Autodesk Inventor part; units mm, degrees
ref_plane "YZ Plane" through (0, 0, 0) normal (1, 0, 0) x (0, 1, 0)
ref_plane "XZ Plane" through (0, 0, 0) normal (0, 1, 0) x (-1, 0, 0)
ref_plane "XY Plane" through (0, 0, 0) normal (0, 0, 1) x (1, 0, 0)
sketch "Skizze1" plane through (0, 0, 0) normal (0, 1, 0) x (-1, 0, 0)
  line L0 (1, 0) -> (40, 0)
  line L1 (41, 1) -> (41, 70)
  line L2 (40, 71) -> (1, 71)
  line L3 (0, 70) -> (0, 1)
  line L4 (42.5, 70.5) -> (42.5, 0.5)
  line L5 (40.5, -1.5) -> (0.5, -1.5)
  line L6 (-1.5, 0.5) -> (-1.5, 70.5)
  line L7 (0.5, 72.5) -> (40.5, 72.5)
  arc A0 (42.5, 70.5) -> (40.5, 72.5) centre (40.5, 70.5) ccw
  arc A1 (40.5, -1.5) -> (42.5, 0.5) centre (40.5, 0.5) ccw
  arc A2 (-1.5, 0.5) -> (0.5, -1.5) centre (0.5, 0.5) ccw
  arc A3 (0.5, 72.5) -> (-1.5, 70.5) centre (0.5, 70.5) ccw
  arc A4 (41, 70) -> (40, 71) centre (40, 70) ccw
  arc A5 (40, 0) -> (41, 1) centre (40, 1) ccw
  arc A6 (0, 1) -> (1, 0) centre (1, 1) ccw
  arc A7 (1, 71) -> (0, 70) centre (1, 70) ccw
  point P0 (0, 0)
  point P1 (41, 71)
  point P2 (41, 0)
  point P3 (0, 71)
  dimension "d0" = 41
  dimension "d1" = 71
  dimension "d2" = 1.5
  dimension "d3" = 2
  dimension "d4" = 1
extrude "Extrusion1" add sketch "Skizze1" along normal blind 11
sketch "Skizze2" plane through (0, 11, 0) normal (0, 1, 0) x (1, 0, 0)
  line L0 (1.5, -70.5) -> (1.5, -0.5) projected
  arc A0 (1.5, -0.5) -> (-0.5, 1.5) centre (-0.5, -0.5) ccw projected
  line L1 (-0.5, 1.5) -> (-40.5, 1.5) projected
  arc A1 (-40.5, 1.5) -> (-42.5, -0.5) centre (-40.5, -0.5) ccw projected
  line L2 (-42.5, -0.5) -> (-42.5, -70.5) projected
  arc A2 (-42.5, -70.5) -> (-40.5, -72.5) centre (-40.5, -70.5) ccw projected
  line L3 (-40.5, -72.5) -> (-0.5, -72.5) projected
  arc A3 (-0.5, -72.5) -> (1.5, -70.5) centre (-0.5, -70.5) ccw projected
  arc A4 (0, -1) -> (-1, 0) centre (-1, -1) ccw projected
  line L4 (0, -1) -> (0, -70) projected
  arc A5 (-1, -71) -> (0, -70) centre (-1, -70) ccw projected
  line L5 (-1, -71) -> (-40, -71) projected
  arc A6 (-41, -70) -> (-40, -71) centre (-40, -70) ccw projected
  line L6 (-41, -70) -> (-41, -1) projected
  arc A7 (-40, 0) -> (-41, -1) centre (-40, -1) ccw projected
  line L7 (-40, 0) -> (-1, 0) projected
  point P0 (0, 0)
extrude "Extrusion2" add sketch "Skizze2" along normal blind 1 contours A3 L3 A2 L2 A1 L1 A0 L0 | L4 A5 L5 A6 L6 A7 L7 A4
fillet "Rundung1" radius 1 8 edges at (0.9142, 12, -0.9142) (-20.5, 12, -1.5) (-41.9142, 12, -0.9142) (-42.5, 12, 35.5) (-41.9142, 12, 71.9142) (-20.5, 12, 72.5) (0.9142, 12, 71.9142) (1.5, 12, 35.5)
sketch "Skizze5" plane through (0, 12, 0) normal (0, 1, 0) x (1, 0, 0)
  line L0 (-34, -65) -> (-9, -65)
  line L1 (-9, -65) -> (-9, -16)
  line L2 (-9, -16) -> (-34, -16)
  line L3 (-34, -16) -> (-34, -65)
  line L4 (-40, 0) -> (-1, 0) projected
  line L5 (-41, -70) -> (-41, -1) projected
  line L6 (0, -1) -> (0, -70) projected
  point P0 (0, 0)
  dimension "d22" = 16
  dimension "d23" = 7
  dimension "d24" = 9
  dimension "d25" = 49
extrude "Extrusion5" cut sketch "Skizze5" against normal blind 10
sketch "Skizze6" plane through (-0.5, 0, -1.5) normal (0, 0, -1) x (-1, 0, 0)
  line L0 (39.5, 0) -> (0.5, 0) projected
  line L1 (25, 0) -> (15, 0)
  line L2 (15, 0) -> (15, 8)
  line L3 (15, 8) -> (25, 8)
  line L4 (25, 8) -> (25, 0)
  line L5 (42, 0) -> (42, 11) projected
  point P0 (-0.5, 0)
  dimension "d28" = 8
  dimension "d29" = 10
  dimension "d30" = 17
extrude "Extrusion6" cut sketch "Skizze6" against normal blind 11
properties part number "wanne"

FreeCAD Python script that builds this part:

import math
import FreeCAD as App
import Part
import Sketcher


def edges_at(feature, points):
    """Names of the edges that pass closest to the given points."""
    edges = feature.Shape.Edges
    near = lambda p: min(range(len(edges)), key=lambda i: edges[i].distToShape(Part.Vertex(*p))[0])
    return sorted({f"Edge{near(p) + 1}" for p in points})

doc = App.newDocument("Part")
body = doc.addObject("PartDesign::Body", "Body")

# Sketch on XZ plane
sketch1 = body.newObject("Sketcher::SketchObject", "Sketch")
sketch1.AttachmentSupport = (doc.getObject("XZ_Plane"), [""])
sketch1.MapMode = "FlatFace"
sketch1.addGeometry(Part.LineSegment(App.Vector(-42.5, 0.5, 0), App.Vector(-42.5, 70.5, 0)), False)
sketch1.addGeometry(Part.ArcOfCircle(Part.Circle(App.Vector(-40.5, 70.5, 0), App.Vector(0, 0, 1), 2), math.radians(90), math.radians(180)), False)
sketch1.addGeometry(Part.LineSegment(App.Vector(-40.5, 72.5, 0), App.Vector(-0.5, 72.5, 0)), False)
sketch1.addGeometry(Part.ArcOfCircle(Part.Circle(App.Vector(-0.5, 70.5, 0), App.Vector(0, 0, 1), 2), math.radians(0), math.radians(90)), False)
sketch1.addGeometry(Part.LineSegment(App.Vector(1.5, 70.5, 0), App.Vector(1.5, 0.5, 0)), False)
sketch1.addGeometry(Part.ArcOfCircle(Part.Circle(App.Vector(-0.5, 0.5, 0), App.Vector(0, 0, 1), 2), math.radians(-90), math.radians(0)), False)
sketch1.addGeometry(Part.LineSegment(App.Vector(-0.5, -1.5, 0), App.Vector(-40.5, -1.5, 0)), False)
sketch1.addGeometry(Part.ArcOfCircle(Part.Circle(App.Vector(-40.5, 0.5, 0), App.Vector(0, 0, 1), 2), math.radians(180), math.radians(270)), False)
sketch1.addGeometry(Part.LineSegment(App.Vector(-40, 0, 0), App.Vector(-1, 0, 0)), False)
sketch1.addGeometry(Part.ArcOfCircle(Part.Circle(App.Vector(-1, 1, 0), App.Vector(0, 0, 1), 1), math.radians(-90), math.radians(0)), False)
sketch1.addGeometry(Part.LineSegment(App.Vector(0, 1, 0), App.Vector(0, 70, 0)), False)
sketch1.addGeometry(Part.ArcOfCircle(Part.Circle(App.Vector(-1, 70, 0), App.Vector(0, 0, 1), 1), math.radians(0), math.radians(90)), False)
sketch1.addGeometry(Part.LineSegment(App.Vector(-1, 71, 0), App.Vector(-40, 71, 0)), False)
sketch1.addGeometry(Part.ArcOfCircle(Part.Circle(App.Vector(-40, 70, 0), App.Vector(0, 0, 1), 1), math.radians(90), math.radians(180)), False)
sketch1.addGeometry(Part.LineSegment(App.Vector(-41, 70, 0), App.Vector(-41, 1, 0)), False)
sketch1.addGeometry(Part.ArcOfCircle(Part.Circle(App.Vector(-40, 1, 0), App.Vector(0, 0, 1), 1), math.radians(180), math.radians(270)), False)
sketch1.addConstraint(Sketcher.Constraint("Tangent", 0, 2, 1, 2))
sketch1.addConstraint(Sketcher.Constraint("Tangent", 1, 1, 2, 1))
sketch1.addConstraint(Sketcher.Constraint("Tangent", 2, 2, 3, 2))
sketch1.addConstraint(Sketcher.Constraint("Tangent", 3, 1, 4, 1))
sketch1.addConstraint(Sketcher.Constraint("Tangent", 4, 2, 5, 2))
sketch1.addConstraint(Sketcher.Constraint("Tangent", 5, 1, 6, 1))
sketch1.addConstraint(Sketcher.Constraint("Tangent", 6, 2, 7, 2))
sketch1.addConstraint(Sketcher.Constraint("Tangent", 7, 1, 0, 1))
sketch1.addConstraint(Sketcher.Constraint("Tangent", 8, 2, 9, 1))
sketch1.addConstraint(Sketcher.Constraint("Tangent", 9, 2, 10, 1))
sketch1.addConstraint(Sketcher.Constraint("Tangent", 10, 2, 11, 1))
sketch1.addConstraint(Sketcher.Constraint("Tangent", 11, 2, 12, 1))
sketch1.addConstraint(Sketcher.Constraint("Tangent", 12, 2, 13, 1))
sketch1.addConstraint(Sketcher.Constraint("Tangent", 13, 2, 14, 1))
sketch1.addConstraint(Sketcher.Constraint("Tangent", 14, 2, 15, 1))
sketch1.addConstraint(Sketcher.Constraint("Tangent", 15, 2, 8, 1))
sketch1.addConstraint(Sketcher.Constraint("Vertical", 0))
sketch1.addConstraint(Sketcher.Constraint("Horizontal", 2))
sketch1.addConstraint(Sketcher.Constraint("Vertical", 4))
sketch1.addConstraint(Sketcher.Constraint("Horizontal", 6))
sketch1.addConstraint(Sketcher.Constraint("Horizontal", 8))
sketch1.addConstraint(Sketcher.Constraint("Vertical", 10))
sketch1.addConstraint(Sketcher.Constraint("Horizontal", 12))
sketch1.addConstraint(Sketcher.Constraint("Vertical", 14))
sketch1.addConstraint(Sketcher.Constraint("Equal", 1, 3))
sketch1.addConstraint(Sketcher.Constraint("Equal", 3, 5))
sketch1.addConstraint(Sketcher.Constraint("Equal", 5, 7))
sketch1.addConstraint(Sketcher.Constraint("Equal", 9, 11))
sketch1.addConstraint(Sketcher.Constraint("Equal", 11, 13))
sketch1.addConstraint(Sketcher.Constraint("Equal", 13, 15))
sketch1.addConstraint(Sketcher.Constraint("PointOnObject", 8, 2, -1))
sketch1.addConstraint(Sketcher.Constraint("PointOnObject", 9, 2, -2))
sketch1.addConstraint(Sketcher.Constraint("Radius", 1, 2.0))
sketch1.addConstraint(Sketcher.Constraint("Radius", 9, 1.0))
sketch1.addConstraint(Sketcher.Constraint("DistanceY", -1, 1, 11, 2, 71.0))
sketch1.addConstraint(Sketcher.Constraint("DistanceX", 13, 2, -1, 1, 41.0))
sketch1.addConstraint(Sketcher.Constraint("DistanceX", -1, 1, 3, 1, 1.5))
sketch1.addConstraint(Sketcher.Constraint("DistanceY", 5, 1, -1, 1, 1.5))
sketch1.addConstraint(Sketcher.Constraint("DistanceY", 11, 2, 2, 2, 1.5))
sketch1.addConstraint(Sketcher.Constraint("DistanceX", 0, 2, 13, 2, 1.5))
pad1 = body.newObject("PartDesign::Pad", "Pad")
pad1.Profile = sketch1
pad1.Length = 11
pad1.Reversed = True

# Sketch on XZ plane
sketch2 = body.newObject("Sketcher::SketchObject", "Sketch001")
sketch2.AttachmentSupport = (doc.getObject("XZ_Plane"), [""])
sketch2.MapMode = "FlatFace"
sketch2.AttachmentOffset = App.Placement(App.Vector(0, 0, -11), App.Rotation())
sketch2.addGeometry(Part.ArcOfCircle(Part.Circle(App.Vector(-0.5, 70.5, 0), App.Vector(0, 0, 1), 2), math.radians(0), math.radians(90)), False)
sketch2.addGeometry(Part.LineSegment(App.Vector(1.5, 70.5, 0), App.Vector(1.5, 0.5, 0)), False)
sketch2.addGeometry(Part.ArcOfCircle(Part.Circle(App.Vector(-0.5, 0.5, 0), App.Vector(0, 0, 1), 2), math.radians(-90), math.radians(0)), False)
sketch2.addGeometry(Part.LineSegment(App.Vector(-0.5, -1.5, 0), App.Vector(-40.5, -1.5, 0)), False)
sketch2.addGeometry(Part.ArcOfCircle(Part.Circle(App.Vector(-40.5, 0.5, 0), App.Vector(0, 0, 1), 2), math.radians(180), math.radians(270)), False)
sketch2.addGeometry(Part.LineSegment(App.Vector(-42.5, 0.5, 0), App.Vector(-42.5, 70.5, 0)), False)
sketch2.addGeometry(Part.ArcOfCircle(Part.Circle(App.Vector(-40.5, 70.5, 0), App.Vector(0, 0, 1), 2), math.radians(90), math.radians(180)), False)
sketch2.addGeometry(Part.LineSegment(App.Vector(-40.5, 72.5, 0), App.Vector(-0.5, 72.5, 0)), False)
sketch2.addConstraint(Sketcher.Constraint("Tangent", 0, 1, 1, 1))
sketch2.addConstraint(Sketcher.Constraint("Tangent", 1, 2, 2, 2))
sketch2.addConstraint(Sketcher.Constraint("Tangent", 2, 1, 3, 1))
sketch2.addConstraint(Sketcher.Constraint("Tangent", 3, 2, 4, 2))
sketch2.addConstraint(Sketcher.Constraint("Tangent", 4, 1, 5, 1))
sketch2.addConstraint(Sketcher.Constraint("Tangent", 5, 2, 6, 2))
sketch2.addConstraint(Sketcher.Constraint("Tangent", 6, 1, 7, 1))
sketch2.addConstraint(Sketcher.Constraint("Tangent", 7, 2, 0, 2))
sketch2.addConstraint(Sketcher.Constraint("Vertical", 1))
sketch2.addConstraint(Sketcher.Constraint("Horizontal", 3))
sketch2.addConstraint(Sketcher.Constraint("Vertical", 5))
sketch2.addConstraint(Sketcher.Constraint("Horizontal", 7))
sketch2.addConstraint(Sketcher.Constraint("Equal", 0, 2))
sketch2.addConstraint(Sketcher.Constraint("Equal", 2, 4))
sketch2.addConstraint(Sketcher.Constraint("Equal", 4, 6))
sketch2.addConstraint(Sketcher.Constraint("Radius", 0, 2.0))
sketch2.addConstraint(Sketcher.Constraint("DistanceX", 3, 2, 3, 1, 40.0))
sketch2.addConstraint(Sketcher.Constraint("DistanceY", 1, 2, 1, 1, 70.0))
sketch2.addConstraint(Sketcher.Constraint("DistanceX", 0, 3, -1, 1, 0.5))
sketch2.addConstraint(Sketcher.Constraint("DistanceY", -1, 1, 0, 3, 70.5))
pad2 = body.newObject("PartDesign::Pad", "Pad001")
pad2.Profile = sketch2
pad2.Length = 1
pad2.Reversed = True
doc.recompute()

fillet = body.newObject("PartDesign::Fillet", "Fillet")
fillet.Base = (pad2, edges_at(pad2, [
    (0.914, 12, -0.914),
    (-20.5, 12, -1.5),
    (-41.914, 12, -0.914),
    (-42.5, 12, 35.5),
    (-41.914, 12, 71.914),
    (-20.5, 12, 72.5),
    (0.914, 12, 71.914),
    (1.5, 12, 35.5),
]))
fillet.Radius = 1

# Sketch on XZ plane
sketch3 = body.newObject("Sketcher::SketchObject", "Sketch002")
sketch3.AttachmentSupport = (doc.getObject("XZ_Plane"), [""])
sketch3.MapMode = "FlatFace"
sketch3.AttachmentOffset = App.Placement(App.Vector(0, 0, -12), App.Rotation())
sketch3.addGeometry(Part.LineSegment(App.Vector(-34, 16, 0), App.Vector(-34, 65, 0)), False)
sketch3.addGeometry(Part.LineSegment(App.Vector(-34, 65, 0), App.Vector(-9, 65, 0)), False)
sketch3.addGeometry(Part.LineSegment(App.Vector(-9, 65, 0), App.Vector(-9, 16, 0)), False)
sketch3.addGeometry(Part.LineSegment(App.Vector(-9, 16, 0), App.Vector(-34, 16, 0)), False)
sketch3.addConstraint(Sketcher.Constraint("Coincident", 0, 2, 1, 1))
sketch3.addConstraint(Sketcher.Constraint("Coincident", 1, 2, 2, 1))
sketch3.addConstraint(Sketcher.Constraint("Coincident", 2, 2, 3, 1))
sketch3.addConstraint(Sketcher.Constraint("Coincident", 3, 2, 0, 1))
sketch3.addConstraint(Sketcher.Constraint("Vertical", 0))
sketch3.addConstraint(Sketcher.Constraint("Horizontal", 1))
sketch3.addConstraint(Sketcher.Constraint("Vertical", 2))
sketch3.addConstraint(Sketcher.Constraint("Horizontal", 3))
sketch3.addConstraint(Sketcher.Constraint("DistanceY", 0, 1, 0, 2, 49.0))
sketch3.addConstraint(Sketcher.Constraint("DistanceX", 1, 2, -1, 1, 9.0))
sketch3.addConstraint(Sketcher.Constraint("DistanceY", -1, 1, 2, 2, 16.0))
sketch3.addConstraint(Sketcher.Constraint("DistanceX", 1, 1, 1, 2, 25.0))
pocket1 = body.newObject("PartDesign::Pocket", "Pocket")
pocket1.Profile = sketch3
pocket1.Length = 10
pocket1.Reversed = True

# Sketch on XY plane
sketch4 = body.newObject("Sketcher::SketchObject", "Sketch003")
sketch4.AttachmentSupport = (doc.getObject("XY_Plane"), [""])
sketch4.MapMode = "FlatFace"
sketch4.AttachmentOffset = App.Placement(App.Vector(0, 0, -1.5), App.Rotation())
sketch4.addGeometry(Part.LineSegment(App.Vector(-16, 0, 0), App.Vector(-26, 0, 0)), False)
sketch4.addGeometry(Part.LineSegment(App.Vector(-26, 0, 0), App.Vector(-26, 8, 0)), False)
sketch4.addGeometry(Part.LineSegment(App.Vector(-26, 8, 0), App.Vector(-16, 8, 0)), False)
sketch4.addGeometry(Part.LineSegment(App.Vector(-16, 8, 0), App.Vector(-16, 0, 0)), False)
sketch4.addConstraint(Sketcher.Constraint("Coincident", 0, 2, 1, 1))
sketch4.addConstraint(Sketcher.Constraint("Coincident", 1, 2, 2, 1))
sketch4.addConstraint(Sketcher.Constraint("Coincident", 2, 2, 3, 1))
sketch4.addConstraint(Sketcher.Constraint("Coincident", 3, 2, 0, 1))
sketch4.addConstraint(Sketcher.Constraint("Horizontal", 0))
sketch4.addConstraint(Sketcher.Constraint("Vertical", 1))
sketch4.addConstraint(Sketcher.Constraint("Horizontal", 2))
sketch4.addConstraint(Sketcher.Constraint("Vertical", 3))
sketch4.addConstraint(Sketcher.Constraint("PointOnObject", 0, 2, -1))
sketch4.addConstraint(Sketcher.Constraint("DistanceX", 0, 2, 0, 1, 10.0))
sketch4.addConstraint(Sketcher.Constraint("DistanceY", 1, 1, 1, 2, 8.0))
sketch4.addConstraint(Sketcher.Constraint("DistanceX", 0, 2, -1, 1, 25.5))
pocket2 = body.newObject("PartDesign::Pocket", "Pocket001")
pocket2.Profile = sketch4
pocket2.Length = 11
pocket2.Reversed = True

doc.recompute()
